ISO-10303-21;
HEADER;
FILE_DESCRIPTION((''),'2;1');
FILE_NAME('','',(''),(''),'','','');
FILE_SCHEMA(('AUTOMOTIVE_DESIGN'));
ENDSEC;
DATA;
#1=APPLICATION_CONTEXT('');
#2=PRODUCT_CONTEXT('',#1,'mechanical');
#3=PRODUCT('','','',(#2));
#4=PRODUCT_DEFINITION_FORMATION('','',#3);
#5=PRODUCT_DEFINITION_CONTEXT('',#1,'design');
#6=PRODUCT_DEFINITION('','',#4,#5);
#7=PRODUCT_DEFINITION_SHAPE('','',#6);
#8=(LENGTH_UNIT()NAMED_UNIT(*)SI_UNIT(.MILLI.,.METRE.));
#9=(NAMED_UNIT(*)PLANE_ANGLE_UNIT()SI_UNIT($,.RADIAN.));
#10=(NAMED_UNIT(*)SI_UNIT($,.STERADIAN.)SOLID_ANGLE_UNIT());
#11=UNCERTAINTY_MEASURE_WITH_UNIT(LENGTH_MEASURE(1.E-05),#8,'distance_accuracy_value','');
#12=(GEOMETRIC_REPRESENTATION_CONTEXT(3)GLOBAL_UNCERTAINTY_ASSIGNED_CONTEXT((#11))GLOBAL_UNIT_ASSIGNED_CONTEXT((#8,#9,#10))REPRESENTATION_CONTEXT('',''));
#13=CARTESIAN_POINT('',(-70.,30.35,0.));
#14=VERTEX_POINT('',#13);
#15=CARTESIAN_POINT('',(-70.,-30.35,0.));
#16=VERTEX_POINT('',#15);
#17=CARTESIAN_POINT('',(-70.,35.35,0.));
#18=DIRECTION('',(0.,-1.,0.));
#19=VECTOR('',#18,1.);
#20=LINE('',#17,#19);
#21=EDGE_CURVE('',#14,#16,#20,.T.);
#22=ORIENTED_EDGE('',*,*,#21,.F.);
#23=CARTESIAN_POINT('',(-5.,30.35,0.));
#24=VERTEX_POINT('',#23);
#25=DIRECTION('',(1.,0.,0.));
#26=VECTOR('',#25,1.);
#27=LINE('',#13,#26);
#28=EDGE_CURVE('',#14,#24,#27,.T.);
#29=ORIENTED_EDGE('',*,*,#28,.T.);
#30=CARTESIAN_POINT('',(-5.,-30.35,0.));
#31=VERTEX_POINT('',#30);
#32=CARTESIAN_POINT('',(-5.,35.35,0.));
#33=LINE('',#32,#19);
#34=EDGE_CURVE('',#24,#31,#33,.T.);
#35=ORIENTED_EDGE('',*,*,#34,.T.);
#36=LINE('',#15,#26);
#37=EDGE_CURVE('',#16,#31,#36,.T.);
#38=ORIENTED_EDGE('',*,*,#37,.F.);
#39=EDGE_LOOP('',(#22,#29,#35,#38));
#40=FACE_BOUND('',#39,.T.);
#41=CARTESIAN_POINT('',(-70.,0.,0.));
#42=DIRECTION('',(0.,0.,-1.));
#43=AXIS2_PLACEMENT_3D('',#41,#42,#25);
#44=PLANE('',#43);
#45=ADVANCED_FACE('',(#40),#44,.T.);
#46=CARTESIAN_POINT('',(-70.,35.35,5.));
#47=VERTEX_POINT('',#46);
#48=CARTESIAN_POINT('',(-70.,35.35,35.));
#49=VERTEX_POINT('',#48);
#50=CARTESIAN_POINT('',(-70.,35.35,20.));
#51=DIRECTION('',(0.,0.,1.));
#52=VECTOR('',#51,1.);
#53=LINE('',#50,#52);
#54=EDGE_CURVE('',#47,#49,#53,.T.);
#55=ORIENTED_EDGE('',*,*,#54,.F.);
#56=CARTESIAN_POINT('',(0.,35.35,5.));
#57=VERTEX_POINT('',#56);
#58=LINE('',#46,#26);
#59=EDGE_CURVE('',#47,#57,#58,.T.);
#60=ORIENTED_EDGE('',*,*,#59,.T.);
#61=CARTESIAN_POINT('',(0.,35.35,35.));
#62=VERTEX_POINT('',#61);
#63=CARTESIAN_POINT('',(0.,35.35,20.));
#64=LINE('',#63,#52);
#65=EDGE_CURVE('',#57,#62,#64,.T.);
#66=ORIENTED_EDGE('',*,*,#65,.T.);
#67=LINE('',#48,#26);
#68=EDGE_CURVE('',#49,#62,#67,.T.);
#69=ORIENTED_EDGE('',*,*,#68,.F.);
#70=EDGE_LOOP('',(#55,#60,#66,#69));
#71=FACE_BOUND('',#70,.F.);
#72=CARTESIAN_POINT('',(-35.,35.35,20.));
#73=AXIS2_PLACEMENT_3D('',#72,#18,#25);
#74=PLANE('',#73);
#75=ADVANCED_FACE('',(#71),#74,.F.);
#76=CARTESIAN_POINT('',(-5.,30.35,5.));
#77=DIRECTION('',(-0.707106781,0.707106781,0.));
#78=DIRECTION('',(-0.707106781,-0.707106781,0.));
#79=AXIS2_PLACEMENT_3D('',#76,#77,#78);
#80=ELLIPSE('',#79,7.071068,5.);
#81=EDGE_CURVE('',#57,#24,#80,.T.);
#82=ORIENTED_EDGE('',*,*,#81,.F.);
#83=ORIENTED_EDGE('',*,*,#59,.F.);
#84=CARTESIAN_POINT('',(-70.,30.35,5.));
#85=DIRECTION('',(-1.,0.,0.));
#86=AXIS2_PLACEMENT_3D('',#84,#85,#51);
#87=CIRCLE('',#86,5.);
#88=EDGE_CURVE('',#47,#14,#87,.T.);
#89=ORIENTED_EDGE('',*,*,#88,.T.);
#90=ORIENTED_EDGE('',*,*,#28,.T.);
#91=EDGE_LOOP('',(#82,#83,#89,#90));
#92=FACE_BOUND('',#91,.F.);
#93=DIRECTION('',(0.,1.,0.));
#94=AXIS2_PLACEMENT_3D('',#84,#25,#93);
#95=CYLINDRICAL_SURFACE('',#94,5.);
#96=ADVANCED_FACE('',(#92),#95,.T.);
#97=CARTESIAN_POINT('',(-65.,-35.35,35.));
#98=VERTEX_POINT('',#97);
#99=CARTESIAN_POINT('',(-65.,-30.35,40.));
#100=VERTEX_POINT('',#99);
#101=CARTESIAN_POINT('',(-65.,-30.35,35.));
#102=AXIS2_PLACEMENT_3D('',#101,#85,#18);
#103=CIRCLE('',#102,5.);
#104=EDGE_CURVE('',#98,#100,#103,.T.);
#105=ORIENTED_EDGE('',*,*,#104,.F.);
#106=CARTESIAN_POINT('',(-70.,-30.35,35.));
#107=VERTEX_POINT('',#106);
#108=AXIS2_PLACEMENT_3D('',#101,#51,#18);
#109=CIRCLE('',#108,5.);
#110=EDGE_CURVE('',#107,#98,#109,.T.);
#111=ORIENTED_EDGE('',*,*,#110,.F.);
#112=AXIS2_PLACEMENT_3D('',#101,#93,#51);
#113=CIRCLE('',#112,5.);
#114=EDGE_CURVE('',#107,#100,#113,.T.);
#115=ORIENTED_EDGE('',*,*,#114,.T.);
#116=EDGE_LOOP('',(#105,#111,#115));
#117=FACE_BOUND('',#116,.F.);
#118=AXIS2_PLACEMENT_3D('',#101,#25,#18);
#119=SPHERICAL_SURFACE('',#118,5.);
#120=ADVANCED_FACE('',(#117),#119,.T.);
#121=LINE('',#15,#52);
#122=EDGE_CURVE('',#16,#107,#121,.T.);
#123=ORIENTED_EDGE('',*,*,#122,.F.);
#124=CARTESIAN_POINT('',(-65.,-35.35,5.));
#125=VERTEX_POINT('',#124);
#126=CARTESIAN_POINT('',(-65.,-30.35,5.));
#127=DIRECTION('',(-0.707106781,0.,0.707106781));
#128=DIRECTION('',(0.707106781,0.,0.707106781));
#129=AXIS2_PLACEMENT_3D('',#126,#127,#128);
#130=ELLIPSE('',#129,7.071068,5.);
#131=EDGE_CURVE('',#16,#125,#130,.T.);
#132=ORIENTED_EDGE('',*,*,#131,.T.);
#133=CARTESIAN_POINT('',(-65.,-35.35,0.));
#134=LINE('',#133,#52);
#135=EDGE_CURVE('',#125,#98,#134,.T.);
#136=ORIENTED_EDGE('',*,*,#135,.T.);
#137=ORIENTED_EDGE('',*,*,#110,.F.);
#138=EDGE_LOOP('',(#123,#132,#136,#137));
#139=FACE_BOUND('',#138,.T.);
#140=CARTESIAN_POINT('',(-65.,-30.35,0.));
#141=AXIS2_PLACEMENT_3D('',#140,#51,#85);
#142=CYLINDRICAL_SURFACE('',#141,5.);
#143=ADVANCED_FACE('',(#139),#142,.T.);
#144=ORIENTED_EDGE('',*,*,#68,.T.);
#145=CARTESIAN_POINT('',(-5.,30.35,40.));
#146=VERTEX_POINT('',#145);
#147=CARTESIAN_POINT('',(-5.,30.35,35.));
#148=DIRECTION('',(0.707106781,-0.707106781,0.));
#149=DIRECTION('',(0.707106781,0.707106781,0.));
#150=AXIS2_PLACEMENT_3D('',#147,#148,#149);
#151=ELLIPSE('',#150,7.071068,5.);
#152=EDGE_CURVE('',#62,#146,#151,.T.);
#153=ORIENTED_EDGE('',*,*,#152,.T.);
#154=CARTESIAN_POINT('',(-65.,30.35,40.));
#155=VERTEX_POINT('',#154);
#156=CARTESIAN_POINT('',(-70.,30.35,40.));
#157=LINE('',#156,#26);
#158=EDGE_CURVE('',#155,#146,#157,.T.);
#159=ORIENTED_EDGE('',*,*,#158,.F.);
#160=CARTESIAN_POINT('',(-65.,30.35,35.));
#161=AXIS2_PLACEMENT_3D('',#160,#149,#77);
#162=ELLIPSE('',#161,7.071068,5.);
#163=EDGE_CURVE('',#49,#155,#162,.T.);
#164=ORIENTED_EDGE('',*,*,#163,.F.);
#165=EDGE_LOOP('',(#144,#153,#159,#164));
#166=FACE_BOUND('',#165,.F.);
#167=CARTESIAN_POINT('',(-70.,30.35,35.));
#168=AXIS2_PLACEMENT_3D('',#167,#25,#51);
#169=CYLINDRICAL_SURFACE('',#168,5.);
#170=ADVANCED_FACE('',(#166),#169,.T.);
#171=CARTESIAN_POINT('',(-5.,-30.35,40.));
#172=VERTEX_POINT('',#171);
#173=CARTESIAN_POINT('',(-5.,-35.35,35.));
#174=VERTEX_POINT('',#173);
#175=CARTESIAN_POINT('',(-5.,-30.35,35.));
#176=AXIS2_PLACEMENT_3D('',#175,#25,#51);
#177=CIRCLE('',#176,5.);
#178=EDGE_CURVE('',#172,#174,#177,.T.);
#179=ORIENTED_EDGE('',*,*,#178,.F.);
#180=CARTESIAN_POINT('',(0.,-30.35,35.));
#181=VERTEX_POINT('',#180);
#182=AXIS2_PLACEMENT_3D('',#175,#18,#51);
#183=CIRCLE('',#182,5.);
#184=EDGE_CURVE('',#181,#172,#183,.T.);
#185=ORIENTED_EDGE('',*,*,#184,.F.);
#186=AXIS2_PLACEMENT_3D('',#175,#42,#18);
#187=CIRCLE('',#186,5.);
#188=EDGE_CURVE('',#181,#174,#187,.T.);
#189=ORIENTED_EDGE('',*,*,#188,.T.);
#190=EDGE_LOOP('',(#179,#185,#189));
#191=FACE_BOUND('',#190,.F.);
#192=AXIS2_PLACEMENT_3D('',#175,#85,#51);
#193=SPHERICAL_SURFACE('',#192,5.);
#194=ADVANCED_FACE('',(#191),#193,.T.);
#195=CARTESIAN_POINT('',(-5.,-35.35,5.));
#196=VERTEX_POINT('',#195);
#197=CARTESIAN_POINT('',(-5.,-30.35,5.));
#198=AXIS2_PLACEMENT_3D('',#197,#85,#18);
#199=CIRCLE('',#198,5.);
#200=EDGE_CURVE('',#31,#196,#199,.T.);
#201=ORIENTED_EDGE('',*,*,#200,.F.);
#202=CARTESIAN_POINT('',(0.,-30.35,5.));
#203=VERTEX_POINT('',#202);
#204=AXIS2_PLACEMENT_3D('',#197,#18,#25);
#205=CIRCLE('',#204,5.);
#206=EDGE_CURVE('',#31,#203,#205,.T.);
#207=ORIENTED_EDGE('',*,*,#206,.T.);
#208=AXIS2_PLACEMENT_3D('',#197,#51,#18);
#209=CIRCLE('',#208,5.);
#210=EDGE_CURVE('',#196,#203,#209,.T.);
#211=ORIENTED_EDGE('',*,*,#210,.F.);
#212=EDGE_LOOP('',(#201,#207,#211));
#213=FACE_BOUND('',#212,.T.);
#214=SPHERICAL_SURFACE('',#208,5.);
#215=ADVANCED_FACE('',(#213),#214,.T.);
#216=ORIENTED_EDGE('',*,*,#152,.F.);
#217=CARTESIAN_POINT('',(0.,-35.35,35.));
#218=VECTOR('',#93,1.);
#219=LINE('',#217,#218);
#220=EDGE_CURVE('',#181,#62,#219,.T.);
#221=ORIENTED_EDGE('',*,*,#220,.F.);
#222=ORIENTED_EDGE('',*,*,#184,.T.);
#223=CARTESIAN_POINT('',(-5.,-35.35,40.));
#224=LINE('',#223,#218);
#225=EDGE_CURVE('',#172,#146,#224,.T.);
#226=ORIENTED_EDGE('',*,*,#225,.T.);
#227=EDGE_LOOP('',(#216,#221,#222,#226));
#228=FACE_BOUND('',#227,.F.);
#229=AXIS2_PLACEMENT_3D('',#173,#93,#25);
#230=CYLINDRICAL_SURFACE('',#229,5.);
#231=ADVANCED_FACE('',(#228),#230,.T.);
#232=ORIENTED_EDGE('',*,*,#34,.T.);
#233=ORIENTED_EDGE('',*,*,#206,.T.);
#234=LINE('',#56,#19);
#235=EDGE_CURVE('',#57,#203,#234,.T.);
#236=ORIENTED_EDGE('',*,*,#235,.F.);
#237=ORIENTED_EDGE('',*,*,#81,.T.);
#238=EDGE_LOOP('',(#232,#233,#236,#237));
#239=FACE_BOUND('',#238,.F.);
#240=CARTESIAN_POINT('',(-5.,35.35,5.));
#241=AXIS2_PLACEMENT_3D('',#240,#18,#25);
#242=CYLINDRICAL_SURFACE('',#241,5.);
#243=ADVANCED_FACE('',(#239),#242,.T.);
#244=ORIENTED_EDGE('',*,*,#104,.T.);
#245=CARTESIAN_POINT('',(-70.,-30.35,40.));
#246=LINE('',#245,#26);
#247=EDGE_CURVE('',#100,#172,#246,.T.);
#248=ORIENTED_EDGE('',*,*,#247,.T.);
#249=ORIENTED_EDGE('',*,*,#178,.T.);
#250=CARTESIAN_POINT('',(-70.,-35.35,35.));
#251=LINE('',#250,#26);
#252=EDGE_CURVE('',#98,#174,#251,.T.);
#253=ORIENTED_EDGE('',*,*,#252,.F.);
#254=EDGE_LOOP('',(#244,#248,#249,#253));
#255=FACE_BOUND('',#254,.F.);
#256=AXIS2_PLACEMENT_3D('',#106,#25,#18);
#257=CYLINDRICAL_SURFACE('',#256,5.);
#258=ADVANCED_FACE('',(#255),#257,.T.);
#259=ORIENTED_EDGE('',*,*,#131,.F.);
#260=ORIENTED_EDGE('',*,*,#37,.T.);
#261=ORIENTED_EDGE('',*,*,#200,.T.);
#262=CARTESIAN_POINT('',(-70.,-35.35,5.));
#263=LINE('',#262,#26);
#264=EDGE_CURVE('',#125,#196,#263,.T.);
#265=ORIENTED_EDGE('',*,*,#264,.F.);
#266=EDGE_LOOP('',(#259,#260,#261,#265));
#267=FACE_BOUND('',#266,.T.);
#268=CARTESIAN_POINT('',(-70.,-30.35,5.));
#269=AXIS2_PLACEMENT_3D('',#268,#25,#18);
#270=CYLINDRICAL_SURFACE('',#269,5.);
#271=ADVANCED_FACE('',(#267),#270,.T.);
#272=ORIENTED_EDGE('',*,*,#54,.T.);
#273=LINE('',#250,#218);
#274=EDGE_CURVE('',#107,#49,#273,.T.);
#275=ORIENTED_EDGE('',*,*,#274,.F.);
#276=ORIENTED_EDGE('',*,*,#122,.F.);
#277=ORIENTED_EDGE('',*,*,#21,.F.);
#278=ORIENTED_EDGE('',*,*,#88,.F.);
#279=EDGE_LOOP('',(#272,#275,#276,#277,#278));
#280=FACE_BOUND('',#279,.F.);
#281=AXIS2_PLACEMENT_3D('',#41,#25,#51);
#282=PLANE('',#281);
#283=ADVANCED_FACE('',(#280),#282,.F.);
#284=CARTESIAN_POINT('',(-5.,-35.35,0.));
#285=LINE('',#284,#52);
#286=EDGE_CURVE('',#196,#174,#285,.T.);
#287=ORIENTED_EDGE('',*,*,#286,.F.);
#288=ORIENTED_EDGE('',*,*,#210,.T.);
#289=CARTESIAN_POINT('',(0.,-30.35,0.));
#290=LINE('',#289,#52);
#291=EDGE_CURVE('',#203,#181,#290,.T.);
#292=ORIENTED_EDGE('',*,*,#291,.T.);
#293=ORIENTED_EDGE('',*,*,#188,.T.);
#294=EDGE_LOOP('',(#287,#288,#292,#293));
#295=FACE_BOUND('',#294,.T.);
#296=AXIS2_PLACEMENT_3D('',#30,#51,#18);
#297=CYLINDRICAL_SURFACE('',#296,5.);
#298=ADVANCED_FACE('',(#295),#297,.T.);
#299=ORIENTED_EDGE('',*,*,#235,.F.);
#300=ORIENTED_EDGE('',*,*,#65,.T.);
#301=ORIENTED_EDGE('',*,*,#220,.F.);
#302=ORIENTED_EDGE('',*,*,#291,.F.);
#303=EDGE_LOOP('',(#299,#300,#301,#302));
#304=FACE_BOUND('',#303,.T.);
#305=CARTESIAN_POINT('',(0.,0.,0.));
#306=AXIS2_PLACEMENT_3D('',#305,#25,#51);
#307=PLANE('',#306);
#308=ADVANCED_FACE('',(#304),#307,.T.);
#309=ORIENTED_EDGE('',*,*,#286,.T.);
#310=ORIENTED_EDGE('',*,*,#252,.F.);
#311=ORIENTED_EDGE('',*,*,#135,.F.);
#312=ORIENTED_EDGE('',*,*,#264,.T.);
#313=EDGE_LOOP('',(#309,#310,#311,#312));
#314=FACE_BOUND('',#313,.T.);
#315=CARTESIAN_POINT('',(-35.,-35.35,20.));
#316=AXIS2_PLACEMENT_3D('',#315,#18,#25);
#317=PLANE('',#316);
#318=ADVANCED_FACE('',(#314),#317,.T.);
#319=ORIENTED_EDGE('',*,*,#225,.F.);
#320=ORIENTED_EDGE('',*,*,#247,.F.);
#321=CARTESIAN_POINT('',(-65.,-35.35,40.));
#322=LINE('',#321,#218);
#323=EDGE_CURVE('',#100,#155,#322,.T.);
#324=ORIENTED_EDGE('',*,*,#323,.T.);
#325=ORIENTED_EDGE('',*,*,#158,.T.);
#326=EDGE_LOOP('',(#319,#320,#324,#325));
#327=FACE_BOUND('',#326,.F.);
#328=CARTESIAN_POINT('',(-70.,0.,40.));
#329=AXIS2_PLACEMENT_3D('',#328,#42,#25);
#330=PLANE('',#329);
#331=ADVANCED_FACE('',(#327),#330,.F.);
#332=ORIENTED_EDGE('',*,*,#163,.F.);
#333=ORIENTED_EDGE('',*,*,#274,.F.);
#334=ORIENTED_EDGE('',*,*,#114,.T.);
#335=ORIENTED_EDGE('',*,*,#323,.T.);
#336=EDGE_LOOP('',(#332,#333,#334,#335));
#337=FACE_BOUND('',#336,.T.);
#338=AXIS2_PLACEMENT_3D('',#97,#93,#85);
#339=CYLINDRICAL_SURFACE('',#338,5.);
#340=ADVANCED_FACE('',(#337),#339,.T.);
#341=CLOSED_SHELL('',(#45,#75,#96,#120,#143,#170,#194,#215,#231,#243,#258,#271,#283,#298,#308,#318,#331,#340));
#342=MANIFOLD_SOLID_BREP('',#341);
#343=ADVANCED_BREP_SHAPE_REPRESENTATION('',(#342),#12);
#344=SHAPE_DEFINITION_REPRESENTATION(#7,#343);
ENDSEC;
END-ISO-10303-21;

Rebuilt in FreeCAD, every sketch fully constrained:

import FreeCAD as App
import Part
import Sketcher

V = App.Vector


def edges_at(feature, points):
    """Names of the edges that pass closest to the given points."""
    edges = feature.Shape.Edges
    near = lambda p: min(range(len(edges)), key=lambda i: edges[i].distToShape(Part.Vertex(*p))[0])
    return sorted({f"Edge{near(p) + 1}" for p in points})

doc = App.newDocument("Part")
body = doc.addObject("PartDesign::Body", "Body")

sketch1 = doc.addObject("Sketcher::SketchObject", "Sketch")
body.addObject(sketch1)
sketch1.AttachmentSupport = (doc.XZ_Plane, [""])
sketch1.MapMode = "FlatFace"
sketch1.addGeometry(Part.LineSegment(V(-70, 40, 0), V(-70, 0, 0)), False)
sketch1.addGeometry(Part.LineSegment(V(-70, 0, 0), V(0, 0, 0)), False)
sketch1.addGeometry(Part.LineSegment(V(0, 0, 0), V(0, 40, 0)), False)
sketch1.addGeometry(Part.LineSegment(V(0, 40, 0), V(-70, 40, 0)), False)
sketch1.addConstraint(Sketcher.Constraint("Coincident", 0, 2, 1, 1))
sketch1.addConstraint(Sketcher.Constraint("Coincident", 1, 2, 2, 1))
sketch1.addConstraint(Sketcher.Constraint("Coincident", 2, 2, 3, 1))
sketch1.addConstraint(Sketcher.Constraint("Coincident", 3, 2, 0, 1))
sketch1.addConstraint(Sketcher.Constraint("Vertical", 0))
sketch1.addConstraint(Sketcher.Constraint("Horizontal", 1))
sketch1.addConstraint(Sketcher.Constraint("Vertical", 2))
sketch1.addConstraint(Sketcher.Constraint("Horizontal", 3))
sketch1.addConstraint(Sketcher.Constraint("Coincident", 1, 2, -1, 1))
sketch1.addConstraint(Sketcher.Constraint("DistanceX", 1, 1, 1, 2, 70.0))
sketch1.addConstraint(Sketcher.Constraint("DistanceY", 0, 2, 0, 1, 40.0))
pad1 = doc.addObject("PartDesign::Pad", "Pad")
body.addObject(pad1)
pad1.Profile = sketch1
pad1.Length = 70.7
pad1.Midplane = True
doc.recompute()

fillet = doc.addObject("PartDesign::Fillet", "Fillet")
body.addObject(fillet)
fillet.Base = (pad1, edges_at(pad1, [
    (-35, -35.35, 40),
    (0, 0, 40),
    (0, -35.35, 20),
    (-70, -35.35, 20),
    (-35, -35.35, 0),
    (-70, 0, 40),
    (-35, 35.35, 40),
    (0, 0, 0),
    (-35, 35.35, 0),
]))
fillet.Radius = 5

doc.recompute()
